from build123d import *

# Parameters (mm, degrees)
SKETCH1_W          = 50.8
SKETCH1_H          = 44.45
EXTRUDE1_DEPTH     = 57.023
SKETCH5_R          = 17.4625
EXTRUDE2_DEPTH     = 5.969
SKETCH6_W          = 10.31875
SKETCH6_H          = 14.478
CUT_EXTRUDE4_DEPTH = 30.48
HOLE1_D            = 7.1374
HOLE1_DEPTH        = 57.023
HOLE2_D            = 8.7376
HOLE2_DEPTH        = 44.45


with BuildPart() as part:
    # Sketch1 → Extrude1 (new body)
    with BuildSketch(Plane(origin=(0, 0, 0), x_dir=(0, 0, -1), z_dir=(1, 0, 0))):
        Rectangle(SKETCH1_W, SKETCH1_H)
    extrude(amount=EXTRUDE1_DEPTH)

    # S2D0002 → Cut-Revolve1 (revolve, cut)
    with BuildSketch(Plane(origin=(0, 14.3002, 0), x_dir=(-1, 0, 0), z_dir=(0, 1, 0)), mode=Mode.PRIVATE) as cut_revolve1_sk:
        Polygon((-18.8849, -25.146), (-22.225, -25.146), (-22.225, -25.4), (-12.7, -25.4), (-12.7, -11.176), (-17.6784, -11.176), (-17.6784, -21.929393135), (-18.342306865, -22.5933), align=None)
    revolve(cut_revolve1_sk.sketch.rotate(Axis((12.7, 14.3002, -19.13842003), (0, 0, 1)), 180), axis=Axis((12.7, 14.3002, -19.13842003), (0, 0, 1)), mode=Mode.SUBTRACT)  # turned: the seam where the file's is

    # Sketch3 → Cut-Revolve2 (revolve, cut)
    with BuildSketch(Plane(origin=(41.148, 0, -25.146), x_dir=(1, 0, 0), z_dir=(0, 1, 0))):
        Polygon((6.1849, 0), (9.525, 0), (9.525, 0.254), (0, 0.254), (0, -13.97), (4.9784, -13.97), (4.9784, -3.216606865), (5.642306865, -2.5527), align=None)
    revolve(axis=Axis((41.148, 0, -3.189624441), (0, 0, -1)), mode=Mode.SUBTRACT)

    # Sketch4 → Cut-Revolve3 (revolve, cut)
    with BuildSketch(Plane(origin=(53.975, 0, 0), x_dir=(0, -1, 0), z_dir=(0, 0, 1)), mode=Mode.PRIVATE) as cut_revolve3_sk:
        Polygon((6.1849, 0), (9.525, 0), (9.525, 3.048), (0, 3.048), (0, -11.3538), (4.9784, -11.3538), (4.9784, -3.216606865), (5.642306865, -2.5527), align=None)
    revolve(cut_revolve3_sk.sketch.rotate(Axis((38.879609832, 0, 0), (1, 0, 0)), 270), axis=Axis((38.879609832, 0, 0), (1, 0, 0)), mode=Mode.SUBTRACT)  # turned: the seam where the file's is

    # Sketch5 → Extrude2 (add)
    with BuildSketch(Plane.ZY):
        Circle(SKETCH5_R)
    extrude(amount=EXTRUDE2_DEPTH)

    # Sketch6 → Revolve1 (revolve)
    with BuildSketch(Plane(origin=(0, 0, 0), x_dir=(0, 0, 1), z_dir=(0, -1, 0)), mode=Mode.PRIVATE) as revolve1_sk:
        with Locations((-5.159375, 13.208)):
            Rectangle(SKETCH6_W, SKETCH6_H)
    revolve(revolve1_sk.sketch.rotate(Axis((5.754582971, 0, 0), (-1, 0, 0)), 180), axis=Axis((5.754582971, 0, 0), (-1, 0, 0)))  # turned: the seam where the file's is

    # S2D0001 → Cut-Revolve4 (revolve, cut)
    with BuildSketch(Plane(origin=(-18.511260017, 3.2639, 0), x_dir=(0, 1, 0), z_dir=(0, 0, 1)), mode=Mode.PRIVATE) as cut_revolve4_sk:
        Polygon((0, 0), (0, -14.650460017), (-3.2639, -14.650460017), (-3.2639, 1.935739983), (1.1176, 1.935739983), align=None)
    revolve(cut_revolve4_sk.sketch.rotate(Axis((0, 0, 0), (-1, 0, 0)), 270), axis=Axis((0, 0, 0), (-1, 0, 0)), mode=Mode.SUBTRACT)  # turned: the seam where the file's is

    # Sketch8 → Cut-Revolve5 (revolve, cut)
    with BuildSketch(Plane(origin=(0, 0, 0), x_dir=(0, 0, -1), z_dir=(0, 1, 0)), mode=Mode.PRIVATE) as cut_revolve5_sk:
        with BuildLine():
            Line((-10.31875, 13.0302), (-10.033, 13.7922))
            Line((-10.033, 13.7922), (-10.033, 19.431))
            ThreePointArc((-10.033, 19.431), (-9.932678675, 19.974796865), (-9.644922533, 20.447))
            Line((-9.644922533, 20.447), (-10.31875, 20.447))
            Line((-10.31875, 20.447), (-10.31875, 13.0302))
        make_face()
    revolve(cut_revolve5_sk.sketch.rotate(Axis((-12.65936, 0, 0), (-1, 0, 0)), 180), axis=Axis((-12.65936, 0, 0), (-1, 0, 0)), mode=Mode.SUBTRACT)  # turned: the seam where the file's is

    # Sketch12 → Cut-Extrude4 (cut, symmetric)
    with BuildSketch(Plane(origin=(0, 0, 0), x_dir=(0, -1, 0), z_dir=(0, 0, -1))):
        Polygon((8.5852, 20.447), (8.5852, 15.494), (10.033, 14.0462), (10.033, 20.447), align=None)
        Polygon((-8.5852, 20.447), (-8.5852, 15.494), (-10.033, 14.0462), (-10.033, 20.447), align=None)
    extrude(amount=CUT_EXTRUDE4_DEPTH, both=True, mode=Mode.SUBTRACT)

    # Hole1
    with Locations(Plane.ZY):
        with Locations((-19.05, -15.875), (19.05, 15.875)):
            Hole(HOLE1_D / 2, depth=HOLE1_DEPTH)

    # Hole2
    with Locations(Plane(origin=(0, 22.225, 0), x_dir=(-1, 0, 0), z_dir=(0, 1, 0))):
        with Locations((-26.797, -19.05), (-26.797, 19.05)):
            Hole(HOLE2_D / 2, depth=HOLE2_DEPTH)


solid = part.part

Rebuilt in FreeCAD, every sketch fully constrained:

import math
import FreeCAD as App
import Part
import Sketcher
Q = App.Units.Quantity


def add_polygon(sketch, points):
    """Adds a closed chain of lines whose ends are joined by coincident constraints."""
    first, n = sketch.GeometryCount, len(points)
    for a, b in zip(points, points[1:] + points[:1]):
        sketch.addGeometry(Part.LineSegment(App.Vector(*a, 0), App.Vector(*b, 0)), False)
    for i in range(n):
        sketch.addConstraint(Sketcher.Constraint("Coincident", first + i, 2, first + (i + 1) % n, 1))

doc = App.newDocument("Part")
body = doc.addObject("PartDesign::Body", "Body")

# Sketch on YZ plane
sketch1 = body.newObject("Sketcher::SketchObject", "Sketch")
sketch1.AttachmentSupport = (doc.getObject("YZ_Plane"), [""])
sketch1.MapMode = "FlatFace"
add_polygon(sketch1, [(22, 25), (-22, 25), (-22, -25), (22, -25)])  # lines 0-3
sketch1.addConstraint(Sketcher.Constraint("Horizontal", 0))
sketch1.addConstraint(Sketcher.Constraint("Vertical", 1))
sketch1.addConstraint(Sketcher.Constraint("Horizontal", 2))
sketch1.addConstraint(Sketcher.Constraint("Vertical", 3))
sketch1.addConstraint(Sketcher.Constraint("Symmetric", 0, 2, 2, 2, -1, 1))
sketch1.addConstraint(Sketcher.Constraint("DistanceY", 1, 2, 1, 1, Q("2 in")))
sketch1.addConstraint(Sketcher.Constraint("DistanceX", 0, 2, 0, 1, Q("1.75 in")))
pad1 = body.newObject("PartDesign::Pad", "Pad")
pad1.Profile = sketch1
pad1.Length = Q("2.245 in")

# Sketch on XZ plane
sketch2 = body.newObject("Sketcher::SketchObject", "Sketch001")
sketch2.AttachmentSupport = (doc.getObject("XZ_Plane"), [""])
sketch2.MapMode = "FlatFace"
sketch2.AttachmentOffset = App.Placement(App.Vector(0, 0, -0.563 * 25.4), App.Rotation())
add_polygon(sketch2, [(18.88, -25.15), (22.23, -25.15), (22.23, -25.4), (12.7, -25.4), (12.7, -11.18), (17.68, -11.18), (17.68, -21.93), (18.34, -22.59)])  # lines 0-7
sketch2.addGeometry(Part.LineSegment(App.Vector(12.7, -25.4, 0), App.Vector(12.7, -11.18, 0)), True)  # axis
sketch2.addConstraint(Sketcher.Constraint("Horizontal", 0))
sketch2.addConstraint(Sketcher.Constraint("Vertical", 1))
sketch2.addConstraint(Sketcher.Constraint("Horizontal", 2))
sketch2.addConstraint(Sketcher.Constraint("Vertical", 3))
sketch2.addConstraint(Sketcher.Constraint("Horizontal", 4))
sketch2.addConstraint(Sketcher.Constraint("Vertical", 5))
sketch2.addConstraint(Sketcher.Constraint("Vertical", 8))
sketch2.addConstraint(Sketcher.Constraint("Coincident", 8, 1, 2, 2))
sketch2.addConstraint(Sketcher.Constraint("Horizontal", 4, 2, 8, 2))
sketch2.addConstraint(Sketcher.Constraint("DistanceY", 1, 2, -1, 1, Q("1 in")))
sketch2.addConstraint(Sketcher.Constraint("Angle", 6, Q("-45 deg")))
sketch2.addConstraint(Sketcher.Constraint("Angle", 7, Q("-78 deg")))
sketch2.addConstraint(Sketcher.Constraint("DistanceY", 1, 2, 1, 1, Q("0.01 in")))
sketch2.addConstraint(Sketcher.Constraint("DistanceY", 3, 1, 3, 2, Q("0.56 in")))
sketch2.addConstraint(Sketcher.Constraint("DistanceX", -1, 1, 2, 2, Q("0.5 in")))
sketch2.addConstraint(Sketcher.Constraint("DistanceX", 2, 2, 2, 1, Q("0.375 in")))
sketch2.addConstraint(Sketcher.Constraint("DistanceX", 4, 1, 4, 2, Q("0.196 in")))
sketch2.addConstraint(Sketcher.Constraint("DistanceX", 0, 1, 0, 2, Q("0.1315 in")))
sketch2.addConstraint(Sketcher.Constraint("DistanceY", 6, 2, -1, 1, Q("0.8895 in")))
groove = body.newObject("PartDesign::Groove", "Groove")
groove.Profile = sketch2
groove.ReferenceAxis = (sketch2, ["Axis0"])
groove.Angle = 360

# Sketch on XZ plane
sketch3 = body.newObject("Sketcher::SketchObject", "Sketch002")
sketch3.AttachmentSupport = (doc.getObject("XZ_Plane"), [""])
sketch3.MapMode = "FlatFace"
add_polygon(sketch3, [(47.33, -25.15), (50.67, -25.15), (50.67, -25.4), (41.15, -25.4), (41.15, -11.18), (46.13, -11.18), (46.13, -21.93), (46.79, -22.59)])  # lines 0-7
sketch3.addGeometry(Part.LineSegment(App.Vector(41.15, -11.18, 0), App.Vector(41.15, -25.4, 0)), True)  # axis
sketch3.addConstraint(Sketcher.Constraint("Horizontal", 0))
sketch3.addConstraint(Sketcher.Constraint("Vertical", 1))
sketch3.addConstraint(Sketcher.Constraint("Horizontal", 2))
sketch3.addConstraint(Sketcher.Constraint("Vertical", 3))
sketch3.addConstraint(Sketcher.Constraint("Horizontal", 4))
sketch3.addConstraint(Sketcher.Constraint("Vertical", 5))
sketch3.addConstraint(Sketcher.Constraint("Vertical", 8))
sketch3.addConstraint(Sketcher.Constraint("Coincident", 8, 1, 3, 2))
sketch3.addConstraint(Sketcher.Constraint("Horizontal", 1, 2, 8, 2))
sketch3.addConstraint(Sketcher.Constraint("DistanceY", 1, 2, -1, 1, Q("1 in")))
sketch3.addConstraint(Sketcher.Constraint("Angle", 6, Q("-45 deg")))
sketch3.addConstraint(Sketcher.Constraint("Angle", 7, Q("-78 deg")))
sketch3.addConstraint(Sketcher.Constraint("DistanceY", 1, 2, 1, 1, Q("0.01 in")))
sketch3.addConstraint(Sketcher.Constraint("DistanceY", 3, 1, 3, 2, Q("0.56 in")))
sketch3.addConstraint(Sketcher.Constraint("DistanceX", 2, 2, 2, 1, Q("0.375 in")))
sketch3.addConstraint(Sketcher.Constraint("DistanceX", 4, 1, 4, 2, Q("0.196 in")))
sketch3.addConstraint(Sketcher.Constraint("DistanceX", -1, 1, 2, 2, Q("1.62 in")))
sketch3.addConstraint(Sketcher.Constraint("DistanceX", 0, 1, 0, 2, Q("0.1315 in")))
sketch3.addConstraint(Sketcher.Constraint("DistanceY", 6, 2, -1, 1, Q("0.8895 in")))
groove2 = body.newObject("PartDesign::Groove", "Groove001")
groove2.Profile = sketch3
groove2.ReferenceAxis = (sketch3, ["Axis0"])
groove2.Angle = 360

# Sketch on XY plane
sketch4 = body.newObject("Sketcher::SketchObject", "Sketch003")
sketch4.AttachmentSupport = (doc.getObject("XY_Plane"), [""])
sketch4.MapMode = "FlatFace"
add_polygon(sketch4, [(54, -6.2), (54, -9.5), (57, -9.5), (57, 0), (42.6, 0), (42.6, -5), (50.8, -5), (51.4, -5.6)])  # lines 0-7
sketch4.addConstraint(Sketcher.Constraint("Vertical", 0))
sketch4.addConstraint(Sketcher.Constraint("Horizontal", 1))
sketch4.addConstraint(Sketcher.Constraint("Vertical", 2))
sketch4.addConstraint(Sketcher.Constraint("Horizontal", 3))
sketch4.addConstraint(Sketcher.Constraint("Vertical", 4))
sketch4.addConstraint(Sketcher.Constraint("Horizontal", 5))
sketch4.addConstraint(Sketcher.Constraint("PointOnObject", 2, 2, -1))
sketch4.addConstraint(Sketcher.Constraint("Angle", 6, Q("-45 deg")))
sketch4.addConstraint(Sketcher.Constraint("Angle", 7, Q("-12 deg")))
sketch4.addConstraint(Sketcher.Constraint("DistanceX", 1, 1, 1, 2, Q("0.12 in")))
sketch4.addConstraint(Sketcher.Constraint("DistanceX", 3, 2, 3, 1, Q("0.567 in")))
sketch4.addConstraint(Sketcher.Constraint("DistanceY", 2, 1, 2, 2, Q("0.375 in")))
sketch4.addConstraint(Sketcher.Constraint("DistanceY", 4, 2, 4, 1, Q("0.196 in")))
sketch4.addConstraint(Sketcher.Constraint("DistanceY", 0, 2, 0, 1, Q("0.1315 in")))
sketch4.addConstraint(Sketcher.Constraint("DistanceX", -1, 1, 0, 2, Q("2.125 in")))
sketch4.addConstraint(Sketcher.Constraint("DistanceX", -1, 1, 6, 2, Q("2.0245 in")))
groove3 = body.newObject("PartDesign::Groove", "Groove002")
groove3.Profile = sketch4
groove3.ReferenceAxis = (sketch4, ["H_Axis"])
groove3.Angle = 360

# Sketch on YZ plane
sketch5 = body.newObject("Sketcher::SketchObject", "Sketch004")
sketch5.AttachmentSupport = (doc.getObject("YZ_Plane"), [""])
sketch5.MapMode = "FlatFace"
sketch5.addGeometry(Part.Circle(App.Vector(0, 0, 0), App.Vector(0, 0, 1), 17), False)
sketch5.addConstraint(Sketcher.Constraint("Coincident", 0, 3, -1, 1))
sketch5.addConstraint(Sketcher.Constraint("Diameter", 0, Q("1.375 in")))
pad2 = body.newObject("PartDesign::Pad", "Pad001")
pad2.Profile = sketch5
pad2.Length = Q("0.235 in")
pad2.Reversed = True

# Sketch on XZ plane
sketch6 = body.newObject("Sketcher::SketchObject", "Sketch005")
sketch6.AttachmentSupport = (doc.getObject("XZ_Plane"), [""])
sketch6.MapMode = "FlatFace"
add_polygon(sketch6, [(-20, -10), (-6, -10), (-6, 0), (-20, 0)])  # lines 0-3
sketch6.addConstraint(Sketcher.Constraint("Horizontal", 0))
sketch6.addConstraint(Sketcher.Constraint("Vertical", 1))
sketch6.addConstraint(Sketcher.Constraint("Horizontal", 2))
sketch6.addConstraint(Sketcher.Constraint("Vertical", 3))
sketch6.addConstraint(Sketcher.Constraint("PointOnObject", 1, 2, -1))
sketch6.addConstraint(Sketcher.Constraint("DistanceX", 0, 1, 0, 2, Q("0.57 in")))
sketch6.addConstraint(Sketcher.Constraint("DistanceY", 1, 1, 1, 2, Q("0.40625 in")))
sketch6.addConstraint(Sketcher.Constraint("DistanceX", 0, 2, -1, 1, Q("0.235 in")))
revolution = body.newObject("PartDesign::Revolution", "Revolution")
revolution.Profile = sketch6
revolution.ReferenceAxis = (sketch6, ["H_Axis"])
revolution.Angle = 360

# Sketch on XY plane
sketch7 = body.newObject("Sketcher::SketchObject", "Sketch006")
sketch7.AttachmentSupport = (doc.getObject("XY_Plane"), [""])
sketch7.MapMode = "FlatFace"
add_polygon(sketch7, [(-3.9, 3.3), (-18.5, 3.3), (-20.4, 4.4), (-20.4, 0), (-3.9, 0)])  # lines 0-4
sketch7.addConstraint(Sketcher.Constraint("Horizontal", 0))
sketch7.addConstraint(Sketcher.Constraint("Vertical", 2))
sketch7.addConstraint(Sketcher.Constraint("Horizontal", 3))
sketch7.addConstraint(Sketcher.Constraint("Vertical", 4))
sketch7.addConstraint(Sketcher.Constraint("PointOnObject", 2, 2, -1))
sketch7.addConstraint(Sketcher.Constraint("Angle", 1, Q("150 deg")))
sketch7.addConstraint(Sketcher.Constraint("DistanceX", 3, 1, 3, 2, Q("0.653 in")))
sketch7.addConstraint(Sketcher.Constraint("Distance", 1, Q("0.088 in")))
sketch7.addConstraint(Sketcher.Constraint("DistanceY", 2, 2, 2, 1, Q("0.1725 in")))
sketch7.addConstraint(Sketcher.Constraint("DistanceX", 1, 2, -1, 1, Q("0.805 in")))
groove4 = body.newObject("PartDesign::Groove", "Groove003")
groove4.Profile = sketch7
groove4.ReferenceAxis = (sketch7, ["H_Axis"])
groove4.Angle = 360

# Sketch on XZ plane
sketch8 = body.newObject("Sketcher::SketchObject", "Sketch007")
sketch8.AttachmentSupport = (doc.getObject("XZ_Plane"), [""])
sketch8.MapMode = "FlatFace"
sketch8.addGeometry(Part.LineSegment(App.Vector(-13, 10.3, 0), App.Vector(-13.8, 10, 0)), False)
sketch8.addGeometry(Part.LineSegment(App.Vector(-13.8, 10, 0), App.Vector(-19.4, 10, 0)), False)
sketch8.addGeometry(Part.ArcOfCircle(Part.Circle(App.Vector(-19.4, 8.5, 0), App.Vector(0, 0, 1), 1.5), math.radians(90), math.radians(132)), False)
sketch8.addGeometry(Part.LineSegment(App.Vector(-20.4, 9.6, 0), App.Vector(-20.4, 10.3, 0)), False)
sketch8.addGeometry(Part.LineSegment(App.Vector(-20.4, 10.3, 0), App.Vector(-13, 10.3, 0)), False)
sketch8.addConstraint(Sketcher.Constraint("Coincident", 0, 2, 1, 1))
sketch8.addConstraint(Sketcher.Constraint("Tangent", 1, 2, 2, 1))
sketch8.addConstraint(Sketcher.Constraint("Coincident", 2, 2, 3, 1))
sketch8.addConstraint(Sketcher.Constraint("Coincident", 3, 2, 4, 1))
sketch8.addConstraint(Sketcher.Constraint("Coincident", 4, 2, 0, 1))
sketch8.addConstraint(Sketcher.Constraint("Horizontal", 1))
sketch8.addConstraint(Sketcher.Constraint("Vertical", 3))
sketch8.addConstraint(Sketcher.Constraint("Horizontal", 4))
sketch8.addConstraint(Sketcher.Constraint("Radius", 2, Q("0.06 in")))
sketch8.addConstraint(Sketcher.Constraint("DistanceX", 1, 2, 1, 1, Q("0.222 in")))
sketch8.addConstraint(Sketcher.Constraint("DistanceX", 4, 1, 4, 2, Q("0.292 in")))
sketch8.addConstraint(Sketcher.Constraint("DistanceX", 2, 2, 1, 2, Q("0.04 in")))
sketch8.addConstraint(Sketcher.Constraint("DistanceX", 2, 3, -1, 1, Q("0.765 in")))
sketch8.addConstraint(Sketcher.Constraint("DistanceY", -1, 1, 2, 3, Q("0.335 in")))
sketch8.addConstraint(Sketcher.Constraint("DistanceY", -1, 1, 3, 2, Q("0.40625 in")))
groove5 = body.newObject("PartDesign::Groove", "Groove004")
groove5.Profile = sketch8
groove5.ReferenceAxis = (sketch8, ["H_Axis"])
groove5.Angle = 360

# Sketch on XY plane
sketch9 = body.newObject("Sketcher::SketchObject", "Sketch008")
sketch9.AttachmentSupport = (doc.getObject("XY_Plane"), [""])
sketch9.MapMode = "FlatFace"
add_polygon(sketch9, [(-20.4, -8.6), (-15.5, -8.6), (-14, -10), (-20.4, -10)])  # lines 0-3
add_polygon(sketch9, [(-15.5, 8.6), (-20.4, 8.6), (-20.4, 10), (-14, 10)])  # lines 4-7
sketch9.addConstraint(Sketcher.Constraint("Horizontal", 0))
sketch9.addConstraint(Sketcher.Constraint("Horizontal", 2))
sketch9.addConstraint(Sketcher.Constraint("Vertical", 3))
sketch9.addConstraint(Sketcher.Constraint("Horizontal", 4))
sketch9.addConstraint(Sketcher.Constraint("Vertical", 5))
sketch9.addConstraint(Sketcher.Constraint("Horizontal", 6))
sketch9.addConstraint(Sketcher.Constraint("Symmetric", 3, 2, 4, 2, -1))
sketch9.addConstraint(Sketcher.Constraint("Symmetric", 1, 2, 6, 2, -1))
sketch9.addConstraint(Sketcher.Constraint("Perpendicular", 1, 7))
sketch9.addConstraint(Sketcher.Constraint("Vertical", 0, 2, 7, 2))
sketch9.addConstraint(Sketcher.Constraint("DistanceX", 0, 1, 0, 2, Q("0.195 in")))
sketch9.addConstraint(Sketcher.Constraint("DistanceX", 2, 2, 2, 1, Q("0.252 in")))
sketch9.addConstraint(Sketcher.Constraint("DistanceX", 0, 2, -1, 1, Q("0.61 in")))
sketch9.addConstraint(Sketcher.Constraint("DistanceY", 2, 2, 5, 2, Q("0.79 in")))
pocket1 = body.newObject("PartDesign::Pocket", "Pocket")
pocket1.Profile = sketch9
pocket1.Length = Q("2.4 in")
pocket1.Midplane = True

# Sketch on YZ plane
sketch10 = body.newObject("Sketcher::SketchObject", "Sketch009")
sketch10.AttachmentSupport = (doc.getObject("YZ_Plane"), [""])
sketch10.MapMode = "FlatFace"
sketch10.addGeometry(Part.Circle(App.Vector(-15.9, -19.1, 0), App.Vector(0, 0, 1), 3.6), False)
sketch10.addGeometry(Part.Circle(App.Vector(15.9, 19.1, 0), App.Vector(0, 0, 1), 3.6), False)
sketch10.addConstraint(Sketcher.Constraint("Equal", 0, 1))
sketch10.addConstraint(Sketcher.Constraint("Symmetric", 0, 3, 1, 3, -1, 1))
sketch10.addConstraint(Sketcher.Constraint("Diameter", 0, Q("0.281 in")))
sketch10.addConstraint(Sketcher.Constraint("DistanceY", 0, 3, 1, 3, Q("1.5 in")))
sketch10.addConstraint(Sketcher.Constraint("DistanceX", 0, 3, 1, 3, Q("1.25 in")))
doc.recompute()
hole = body.newObject("PartDesign::Hole", "Hole")
hole.Profile = sketch10
hole.ThreadType = "None"
hole.Diameter = Q("0.281 in")
hole.DepthType = "Dimension"
hole.Depth = Q("2.245 in")
hole.DrillPoint = "Flat"
hole.Reversed = True

# Sketch on XZ plane
sketch11 = body.newObject("Sketcher::SketchObject", "Sketch010")
sketch11.AttachmentSupport = (doc.getObject("XZ_Plane"), [""])
sketch11.MapMode = "FlatFace"
sketch11.AttachmentOffset = App.Placement(App.Vector(0, 0, -0.875 * 25.4), App.Rotation())
sketch11.addGeometry(Part.Circle(App.Vector(26.8, -19.1, 0), App.Vector(0, 0, 1), 4.4), False)
sketch11.addGeometry(Part.Circle(App.Vector(26.8, 19.1, 0), App.Vector(0, 0, 1), 4.4), False)
sketch11.addConstraint(Sketcher.Constraint("Equal", 0, 1))
sketch11.addConstraint(Sketcher.Constraint("Symmetric", 0, 3, 1, 3, -1))
sketch11.addConstraint(Sketcher.Constraint("Diameter", 0, Q("0.344 in")))
sketch11.addConstraint(Sketcher.Constraint("DistanceY", 0, 3, 1, 3, Q("1.5 in")))
sketch11.addConstraint(Sketcher.Constraint("DistanceX", -1, 1, 0, 3, Q("1.055 in")))
doc.recompute()
hole2 = body.newObject("PartDesign::Hole", "Hole001")
hole2.Profile = sketch11
hole2.ThreadType = "None"
hole2.Diameter = Q("0.344 in")
hole2.DepthType = "Dimension"
hole2.Depth = Q("1.75 in")
hole2.DrillPoint = "Flat"
hole2.Reversed = True

doc.recompute()
